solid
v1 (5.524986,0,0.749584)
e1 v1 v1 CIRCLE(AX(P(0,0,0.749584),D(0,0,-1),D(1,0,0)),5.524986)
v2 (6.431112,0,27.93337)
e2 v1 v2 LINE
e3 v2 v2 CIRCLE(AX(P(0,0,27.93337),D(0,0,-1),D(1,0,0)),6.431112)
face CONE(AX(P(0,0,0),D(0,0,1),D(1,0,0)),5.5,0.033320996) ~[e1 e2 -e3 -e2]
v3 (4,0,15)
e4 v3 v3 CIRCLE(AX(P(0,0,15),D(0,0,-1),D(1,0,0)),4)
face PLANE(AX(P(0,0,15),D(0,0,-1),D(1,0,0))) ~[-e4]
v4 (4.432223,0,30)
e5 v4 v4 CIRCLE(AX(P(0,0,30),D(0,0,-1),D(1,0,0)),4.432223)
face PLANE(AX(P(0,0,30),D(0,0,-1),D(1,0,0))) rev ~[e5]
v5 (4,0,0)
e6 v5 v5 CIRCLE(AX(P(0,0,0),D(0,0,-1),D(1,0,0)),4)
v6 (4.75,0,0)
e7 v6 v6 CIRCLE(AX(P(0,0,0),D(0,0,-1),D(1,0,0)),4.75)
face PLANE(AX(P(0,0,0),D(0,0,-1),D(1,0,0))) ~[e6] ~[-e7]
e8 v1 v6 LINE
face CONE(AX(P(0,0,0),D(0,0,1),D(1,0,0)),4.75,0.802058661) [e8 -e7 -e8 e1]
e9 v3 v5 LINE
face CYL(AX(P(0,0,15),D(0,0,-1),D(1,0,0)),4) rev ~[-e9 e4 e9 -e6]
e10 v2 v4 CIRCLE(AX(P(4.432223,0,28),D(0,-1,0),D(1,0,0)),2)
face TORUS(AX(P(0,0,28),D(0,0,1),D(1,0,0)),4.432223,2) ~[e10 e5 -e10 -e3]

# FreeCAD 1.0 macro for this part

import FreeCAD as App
import Part
import Sketcher


def edges_at(feature, points):
    """Names of the edges that pass closest to the given points."""
    edges = feature.Shape.Edges
    near = lambda p: min(range(len(edges)), key=lambda i: edges[i].distToShape(Part.Vertex(*p))[0])
    return sorted({f"Edge{near(p) + 1}" for p in points})


def add_polygon(sketch, points):
    """Adds a closed chain of lines whose ends are joined by coincident constraints."""
    first, n = sketch.GeometryCount, len(points)
    for a, b in zip(points, points[1:] + points[:1]):
        sketch.addGeometry(Part.LineSegment(App.Vector(*a, 0), App.Vector(*b, 0)), False)
    for i in range(n):
        sketch.addConstraint(Sketcher.Constraint("Coincident", first + i, 2, first + (i + 1) % n, 1))

doc = App.newDocument("Part")
body = doc.addObject("PartDesign::Body", "Body")

# Sketch on XZ plane
sketch1 = body.newObject("Sketcher::SketchObject", "Sketch")
sketch1.AttachmentSupport = (doc.getObject("XZ_Plane"), [""])
sketch1.MapMode = "FlatFace"
add_polygon(sketch1, [(5.5, 0), (6.5, 30), (0, 30), (0, 15), (4, 15), (4, 0)])  # lines 0-5
sketch1.addConstraint(Sketcher.Constraint("Horizontal", 1))
sketch1.addConstraint(Sketcher.Constraint("Vertical", 2))
sketch1.addConstraint(Sketcher.Constraint("Horizontal", 3))
sketch1.addConstraint(Sketcher.Constraint("Vertical", 4))
sketch1.addConstraint(Sketcher.Constraint("Horizontal", 5))
sketch1.addConstraint(Sketcher.Constraint("PointOnObject", 1, 2, -2))
sketch1.addConstraint(Sketcher.Constraint("PointOnObject", 4, 2, -1))
sketch1.addConstraint(Sketcher.Constraint("Equal", 2, 4))
sketch1.addConstraint(Sketcher.Constraint("DistanceX", 3, 1, 3, 2, 4.0))
sketch1.addConstraint(Sketcher.Constraint("DistanceY", 2, 2, 2, 1, 15.0))
sketch1.addConstraint(Sketcher.Constraint("DistanceX", 1, 2, 1, 1, 6.5))
sketch1.addConstraint(Sketcher.Constraint("DistanceX", 5, 1, 5, 2, 1.5))
revolution = body.newObject("PartDesign::Revolution", "Revolution")
revolution.Profile = sketch1
revolution.ReferenceAxis = (sketch1, ["V_Axis"])
revolution.Angle = 360
doc.recompute()

fillet = body.newObject("PartDesign::Fillet", "Fillet")
fillet.Base = (revolution, edges_at(revolution, [(-6.5, 0, 30)]))
fillet.Radius = 2
doc.recompute()

chamfer = body.newObject("PartDesign::Chamfer", "Chamfer")
chamfer.Base = (fillet, edges_at(fillet, [(-5.5, 0, 0)]))
chamfer.Size = 0.75

doc.recompute()
